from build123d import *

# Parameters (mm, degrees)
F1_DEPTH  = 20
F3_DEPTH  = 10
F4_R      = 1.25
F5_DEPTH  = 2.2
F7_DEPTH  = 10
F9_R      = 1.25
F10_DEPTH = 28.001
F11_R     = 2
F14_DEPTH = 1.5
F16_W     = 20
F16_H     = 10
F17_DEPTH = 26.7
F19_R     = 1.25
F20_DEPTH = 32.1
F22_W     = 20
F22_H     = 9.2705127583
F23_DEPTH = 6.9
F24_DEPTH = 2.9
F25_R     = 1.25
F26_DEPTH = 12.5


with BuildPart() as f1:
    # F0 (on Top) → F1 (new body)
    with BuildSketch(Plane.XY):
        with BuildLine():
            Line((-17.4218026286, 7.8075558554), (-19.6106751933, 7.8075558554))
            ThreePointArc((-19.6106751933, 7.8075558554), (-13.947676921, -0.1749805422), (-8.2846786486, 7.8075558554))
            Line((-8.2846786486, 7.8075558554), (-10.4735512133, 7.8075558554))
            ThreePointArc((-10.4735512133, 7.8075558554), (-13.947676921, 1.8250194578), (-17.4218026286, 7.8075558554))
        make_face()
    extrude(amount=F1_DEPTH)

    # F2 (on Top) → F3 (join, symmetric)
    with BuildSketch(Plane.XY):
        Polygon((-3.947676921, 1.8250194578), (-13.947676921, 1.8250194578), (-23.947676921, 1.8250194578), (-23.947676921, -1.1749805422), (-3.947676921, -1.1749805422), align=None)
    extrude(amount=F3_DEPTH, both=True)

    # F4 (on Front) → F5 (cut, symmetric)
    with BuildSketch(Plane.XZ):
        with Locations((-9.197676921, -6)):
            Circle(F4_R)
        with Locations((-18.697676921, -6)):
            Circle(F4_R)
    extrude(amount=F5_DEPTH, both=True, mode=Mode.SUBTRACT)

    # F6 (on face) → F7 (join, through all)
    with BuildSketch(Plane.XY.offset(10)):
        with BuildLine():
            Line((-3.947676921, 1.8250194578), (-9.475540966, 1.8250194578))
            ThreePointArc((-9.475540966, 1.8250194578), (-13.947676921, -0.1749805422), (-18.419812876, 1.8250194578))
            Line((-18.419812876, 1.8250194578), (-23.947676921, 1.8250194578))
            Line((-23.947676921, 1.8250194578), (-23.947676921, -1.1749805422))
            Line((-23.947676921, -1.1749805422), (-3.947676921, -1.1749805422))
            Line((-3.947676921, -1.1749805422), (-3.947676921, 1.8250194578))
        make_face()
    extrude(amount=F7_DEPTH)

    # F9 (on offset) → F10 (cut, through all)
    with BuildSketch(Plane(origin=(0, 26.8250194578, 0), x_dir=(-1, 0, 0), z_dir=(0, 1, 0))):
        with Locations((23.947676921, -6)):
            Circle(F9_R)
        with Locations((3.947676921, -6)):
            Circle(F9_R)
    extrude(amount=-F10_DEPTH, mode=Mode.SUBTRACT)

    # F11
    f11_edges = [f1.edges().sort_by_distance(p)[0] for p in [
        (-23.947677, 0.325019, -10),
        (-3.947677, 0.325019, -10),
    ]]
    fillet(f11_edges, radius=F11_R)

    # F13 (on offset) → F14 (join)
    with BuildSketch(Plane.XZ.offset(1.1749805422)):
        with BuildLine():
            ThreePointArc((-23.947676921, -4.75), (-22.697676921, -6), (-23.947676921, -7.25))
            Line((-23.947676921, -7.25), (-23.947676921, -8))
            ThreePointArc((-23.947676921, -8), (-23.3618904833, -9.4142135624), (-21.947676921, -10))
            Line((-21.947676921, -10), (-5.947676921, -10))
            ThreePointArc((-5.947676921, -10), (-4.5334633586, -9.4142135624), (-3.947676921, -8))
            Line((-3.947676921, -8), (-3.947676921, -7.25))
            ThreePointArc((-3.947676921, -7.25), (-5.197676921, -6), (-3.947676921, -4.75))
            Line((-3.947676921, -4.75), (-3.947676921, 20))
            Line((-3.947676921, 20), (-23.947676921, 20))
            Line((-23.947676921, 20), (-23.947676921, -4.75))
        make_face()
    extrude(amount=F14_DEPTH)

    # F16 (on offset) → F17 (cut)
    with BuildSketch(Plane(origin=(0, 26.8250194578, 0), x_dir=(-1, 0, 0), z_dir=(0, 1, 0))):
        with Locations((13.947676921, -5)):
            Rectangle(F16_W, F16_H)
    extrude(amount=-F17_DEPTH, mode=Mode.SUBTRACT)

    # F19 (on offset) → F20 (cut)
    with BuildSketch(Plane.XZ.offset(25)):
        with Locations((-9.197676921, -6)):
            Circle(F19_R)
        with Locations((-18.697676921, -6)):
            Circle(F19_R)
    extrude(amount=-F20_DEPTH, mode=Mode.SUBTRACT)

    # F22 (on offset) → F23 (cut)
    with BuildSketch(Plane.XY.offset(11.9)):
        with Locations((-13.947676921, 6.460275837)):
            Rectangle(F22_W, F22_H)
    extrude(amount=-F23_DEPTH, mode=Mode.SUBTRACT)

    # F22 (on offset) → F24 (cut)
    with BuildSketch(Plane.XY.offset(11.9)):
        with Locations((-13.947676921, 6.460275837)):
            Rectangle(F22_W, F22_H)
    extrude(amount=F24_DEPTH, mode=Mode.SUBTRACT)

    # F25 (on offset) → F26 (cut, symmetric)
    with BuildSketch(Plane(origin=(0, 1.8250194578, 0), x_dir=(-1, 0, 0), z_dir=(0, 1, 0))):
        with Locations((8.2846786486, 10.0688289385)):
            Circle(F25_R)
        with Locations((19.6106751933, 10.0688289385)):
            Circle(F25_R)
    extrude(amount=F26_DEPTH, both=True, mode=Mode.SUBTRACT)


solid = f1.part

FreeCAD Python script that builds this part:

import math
import FreeCAD as App
import Part
import Sketcher


def edges_at(feature, points):
    """Names of the edges that pass closest to the given points."""
    edges = feature.Shape.Edges
    near = lambda p: min(range(len(edges)), key=lambda i: edges[i].distToShape(Part.Vertex(*p))[0])
    return sorted({f"Edge{near(p) + 1}" for p in points})


def add_polygon(sketch, points):
    """Adds a closed chain of lines whose ends are joined by coincident constraints."""
    first, n = sketch.GeometryCount, len(points)
    for a, b in zip(points, points[1:] + points[:1]):
        sketch.addGeometry(Part.LineSegment(App.Vector(*a, 0), App.Vector(*b, 0)), False)
    for i in range(n):
        sketch.addConstraint(Sketcher.Constraint("Coincident", first + i, 2, first + (i + 1) % n, 1))

doc = App.newDocument("Part")
params = doc.addObject("Spreadsheet::Sheet", "Params")
for row, (alias, value) in enumerate([
    ("sketch1_radius", "6 mm"),
    ("sketch1_radius2", "4 mm"),
    ("pad1_length", "20 mm"),
    ("sketch2_width", "20 mm"),
    ("sketch2_height", "3 mm"),
    ("pad2_length", "20 mm"),
    ("sketch3_diameter", "2.5 mm"),
    ("pocket1_length", "4.4 mm"),
    ("sketch4_radius", "6 mm"),
    ("sketch4_width", "20 mm"),
    ("sketch4_height", "3 mm"),
    ("sketch5_diameter", "2.5 mm"),
    ("fillet_radius", "2 mm"),
    ("sketch6_radius", "2 mm"),
    ("sketch6_width", "16 mm"),
    ("sketch6_radius2", "1.25 mm"),
    ("pad4_length", "1.5 mm"),
    ("sketch7_width", "20 mm"),
    ("sketch7_height", "10 mm"),
    ("pocket3_length", "26.7 mm"),
    ("sketch8_diameter", "2.5 mm"),
    ("pocket4_length", "32.1 mm"),
    ("sketch9_width", "20 mm"),
    ("pocket5_length", "6.9 mm"),
    ("sketch10_width", "20 mm"),
    ("pocket6_length", "2.9 mm"),
    ("sketch11_diameter", "2.5 mm"),
    ("pocket7_length", "25 mm"),
], start=1):
    params.set(f"A{row}", alias)
    params.set(f"B{row}", "=" + value)
    params.setAlias(f"B{row}", alias)

body = doc.addObject("PartDesign::Body", "Body")

# Sketch on XY plane
sketch1 = doc.addObject("Sketcher::SketchObject", "Sketch")
body.addObject(sketch1)
sketch1.AttachmentSupport = (doc.XY_Plane, [""])
sketch1.MapMode = "FlatFace"
sketch1.addGeometry([
    Part.LineSegment(App.Vector(-17.421803, 7.807556, 0), App.Vector(-19.610675, 7.807556, 0)),
    Part.ArcOfCircle(Part.Circle(App.Vector(-13.947677, 5.825019, 0), App.Vector(0, 0, 1), 6), math.radians(160.705564), math.radians(379.294436)),
    Part.LineSegment(App.Vector(-8.284679, 7.807556, 0), App.Vector(-10.473551, 7.807556, 0)),
    Part.ArcOfCircle(Part.Circle(App.Vector(-13.947677, 5.825019, 0), App.Vector(0, 0, 1), 4), math.radians(150.288428), math.radians(389.711572)),
], False)
sketch1.addConstraint([
    Sketcher.Constraint("Coincident", 0, 2, 1, 1),
    Sketcher.Constraint("Coincident", 1, 2, 2, 1),
    Sketcher.Constraint("Coincident", 2, 2, 3, 2),
    Sketcher.Constraint("Coincident", 3, 1, 0, 1),
    Sketcher.Constraint("Horizontal", 0),
    Sketcher.Constraint("Horizontal", 2),
    Sketcher.Constraint("Coincident", 3, 3, 1, 3),
    Sketcher.Constraint("Horizontal", 0, 2, 1, 2),
    Sketcher.Constraint("Radius", 1, 6.0),
    Sketcher.Constraint("Radius", 3, 4.0),
    Sketcher.Constraint("DistanceX", 0, 2, 1, 3, 5.662998),
    Sketcher.Constraint("DistanceY", -1, 1, 1, 3, 5.825019),
    Sketcher.Constraint("DistanceX", 1, 2, -1, 1, 8.284679),
])
sketch1.setExpression("Constraints[8]", "Params.sketch1_radius")
sketch1.setExpression("Constraints[9]", "Params.sketch1_radius2")
pad1 = doc.addObject("PartDesign::Pad", "Pad")
body.addObject(pad1)
pad1.Profile = sketch1
pad1.setExpression("Length", "Params.pad1_length")

# Sketch on XY plane
sketch2 = doc.addObject("Sketcher::SketchObject", "Sketch001")
body.addObject(sketch2)
sketch2.AttachmentSupport = (doc.XY_Plane, [""])
sketch2.MapMode = "FlatFace"
add_polygon(sketch2, [(-3.947677, 1.825019), (-23.947677, 1.825019), (-23.947677, -1.174981), (-3.947677, -1.174981)])  # lines 0-3
sketch2.addConstraint([
    Sketcher.Constraint("Horizontal", 0),
    Sketcher.Constraint("Vertical", 1),
    Sketcher.Constraint("Horizontal", 2),
    Sketcher.Constraint("Vertical", 3),
    Sketcher.Constraint("DistanceX", 0, 2, 0, 1, 20.0),
    Sketcher.Constraint("DistanceY", 1, 2, 1, 1, 3.0),
    Sketcher.Constraint("DistanceY", -1, 1, 0, 2, 1.825019),
    Sketcher.Constraint("DistanceX", 0, 2, -1, 1, 23.947677),
])
sketch2.setExpression("Constraints[8]", "Params.sketch2_width")
sketch2.setExpression("Constraints[9]", "Params.sketch2_height")
pad2 = doc.addObject("PartDesign::Pad", "Pad001")
body.addObject(pad2)
pad2.Profile = sketch2
pad2.setExpression("Length", "Params.pad2_length")
pad2.Midplane = True

# Sketch on XZ plane
sketch3 = doc.addObject("Sketcher::SketchObject", "Sketch002")
body.addObject(sketch3)
sketch3.AttachmentSupport = (doc.XZ_Plane, [""])
sketch3.MapMode = "FlatFace"
sketch3.addGeometry([
    Part.Circle(App.Vector(-9.197677, -6, 0), App.Vector(0, 0, 1), 1.25),
    Part.Circle(App.Vector(-18.697677, -6, 0), App.Vector(0, 0, 1), 1.25),
], False)
sketch3.addConstraint([
    Sketcher.Constraint("Equal", 0, 1),
    Sketcher.Constraint("Horizontal", 0, 3, 1, 3),
    Sketcher.Constraint("Diameter", 0, 2.5),
    Sketcher.Constraint("DistanceY", 0, 3, -1, 1, 6.0),
    Sketcher.Constraint("DistanceX", 1, 3, 0, 3, 9.5),
    Sketcher.Constraint("DistanceX", 0, 3, -1, 1, 9.197677),
])
sketch3.setExpression("Constraints[2]", "Params.sketch3_diameter")
pocket1 = doc.addObject("PartDesign::Pocket", "Pocket")
body.addObject(pocket1)
pocket1.Profile = sketch3
pocket1.setExpression("Length", "Params.pocket1_length")
pocket1.Midplane = True

# Sketch on XY plane
sketch4 = doc.addObject("Sketcher::SketchObject", "Sketch003")
body.addObject(sketch4)
sketch4.AttachmentSupport = (doc.XY_Plane, [""])
sketch4.MapMode = "FlatFace"
sketch4.AttachmentOffset = App.Placement(App.Vector(0, 0, 10), App.Rotation())
sketch4.addGeometry([
    Part.LineSegment(App.Vector(-3.947677, 1.825019, 0), App.Vector(-9.475541, 1.825019, 0)),  # 0
    Part.ArcOfCircle(Part.Circle(App.Vector(-13.947677, 5.825019, 0), App.Vector(0, 0, 1), 6), math.radians(-138.189685), math.radians(-41.810315)),  # 1
    Part.LineSegment(App.Vector(-18.419813, 1.825019, 0), App.Vector(-23.947677, 1.825019, 0)),  # 2
    Part.LineSegment(App.Vector(-23.947677, 1.825019, 0), App.Vector(-23.947677, -1.174981, 0)),  # 3
    Part.LineSegment(App.Vector(-23.947677, -1.174981, 0), App.Vector(-3.947677, -1.174981, 0)),  # 4
    Part.LineSegment(App.Vector(-3.947677, -1.174981, 0), App.Vector(-3.947677, 1.825019, 0)),  # 5
], False)
sketch4.addConstraint([
    Sketcher.Constraint("Coincident", 0, 2, 1, 2),
    Sketcher.Constraint("Coincident", 1, 1, 2, 1),
    Sketcher.Constraint("Coincident", 2, 2, 3, 1),
    Sketcher.Constraint("Coincident", 3, 2, 4, 1),
    Sketcher.Constraint("Coincident", 4, 2, 5, 1),
    Sketcher.Constraint("Coincident", 5, 2, 0, 1),
    Sketcher.Constraint("Horizontal", 0),
    Sketcher.Constraint("Horizontal", 2),
    Sketcher.Constraint("Vertical", 3),
    Sketcher.Constraint("Horizontal", 4),
    Sketcher.Constraint("Vertical", 5),
    Sketcher.Constraint("Horizontal", 0, 2, 1, 1),
    Sketcher.Constraint("Equal", 0, 2),
    Sketcher.Constraint("Radius", 1, 6.0),
    Sketcher.Constraint("DistanceX", 4, 1, 4, 2, 20.0),
    Sketcher.Constraint("DistanceY", 3, 2, 3, 1, 3.0),
    Sketcher.Constraint("DistanceY", 0, 2, 1, 3, 4.0),
    Sketcher.Constraint("DistanceY", -1, 1, 1, 3, 5.825019),
    Sketcher.Constraint("DistanceX", 0, 2, -1, 1, 9.475541),
])
sketch4.setExpression("Constraints[13]", "Params.sketch4_radius")
sketch4.setExpression("Constraints[14]", "Params.sketch4_width")
sketch4.setExpression("Constraints[15]", "Params.sketch4_height")
pad3 = doc.addObject("PartDesign::Pad", "Pad002")
body.addObject(pad3)
pad3.Profile = sketch4
pad3.Type = "UpToLast"

# Sketch on XZ plane
sketch5 = doc.addObject("Sketcher::SketchObject", "Sketch004")
body.addObject(sketch5)
sketch5.AttachmentSupport = (doc.XZ_Plane, [""])
sketch5.MapMode = "FlatFace"
sketch5.AttachmentOffset = App.Placement(App.Vector(0, 0, -26.825019), App.Rotation())
sketch5.addGeometry([
    Part.Circle(App.Vector(-23.947677, -6, 0), App.Vector(0, 0, 1), 1.25),
    Part.Circle(App.Vector(-3.947677, -6, 0), App.Vector(0, 0, 1), 1.25),
], False)
sketch5.addConstraint([
    Sketcher.Constraint("Equal", 0, 1),
    Sketcher.Constraint("Horizontal", 0, 3, 1, 3),
    Sketcher.Constraint("Diameter", 0, 2.5),
    Sketcher.Constraint("DistanceY", 0, 3, -1, 1, 6.0),
    Sketcher.Constraint("DistanceX", 0, 3, 1, 3, 20.0),
    Sketcher.Constraint("DistanceX", 0, 3, -1, 1, 23.947677),
])
sketch5.setExpression("Constraints[2]", "Params.sketch5_diameter")
pocket2 = doc.addObject("PartDesign::Pocket", "Pocket001")
body.addObject(pocket2)
pocket2.Profile = sketch5
pocket2.Type = "ThroughAll"
pocket2.Reversed = True
doc.recompute()

fillet = doc.addObject("PartDesign::Fillet", "Fillet")
body.addObject(fillet)
fillet.Base = (pocket2, edges_at(pocket2, [(-23.948, 0.325, -10), (-3.948, 0.325, -10)]))
fillet.setExpression("Radius", "Params.fillet_radius")

# Sketch on XZ plane
sketch6 = doc.addObject("Sketcher::SketchObject", "Sketch005")
body.addObject(sketch6)
sketch6.AttachmentSupport = (doc.XZ_Plane, [""])
sketch6.MapMode = "FlatFace"
sketch6.AttachmentOffset = App.Placement(App.Vector(0, 0, 1.174981), App.Rotation())
sketch6.addGeometry([
    Part.ArcOfCircle(Part.Circle(App.Vector(-23.947677, -6, 0), App.Vector(0, 0, 1), 1.25), math.radians(-90), math.radians(90)),  # 0
    Part.LineSegment(App.Vector(-23.947677, -7.25, 0), App.Vector(-23.947677, -8, 0)),  # 1
    Part.ArcOfCircle(Part.Circle(App.Vector(-21.947677, -8, 0), App.Vector(0, 0, 1), 2), math.radians(180), math.radians(270)),  # 2
    Part.LineSegment(App.Vector(-21.947677, -10, 0), App.Vector(-5.947677, -10, 0)),  # 3
    Part.ArcOfCircle(Part.Circle(App.Vector(-5.947677, -8, 0), App.Vector(0, 0, 1), 2), math.radians(-90), math.radians(0)),  # 4
    Part.LineSegment(App.Vector(-3.947677, -8, 0), App.Vector(-3.947677, -7.25, 0)),  # 5
    Part.ArcOfCircle(Part.Circle(App.Vector(-3.947677, -6, 0), App.Vector(0, 0, 1), 1.25), math.radians(90), math.radians(270)),  # 6
    Part.LineSegment(App.Vector(-3.947677, -4.75, 0), App.Vector(-3.947677, 20, 0)),  # 7
    Part.LineSegment(App.Vector(-3.947677, 20, 0), App.Vector(-23.947677, 20, 0)),  # 8
    Part.LineSegment(App.Vector(-23.947677, 20, 0), App.Vector(-23.947677, -4.75, 0)),  # 9
], False)
sketch6.addConstraint([
    Sketcher.Constraint("Coincident", 0, 1, 1, 1),
    Sketcher.Constraint("Tangent", 1, 2, 2, 1),
    Sketcher.Constraint("Tangent", 2, 2, 3, 1),
    Sketcher.Constraint("Tangent", 3, 2, 4, 1),
    Sketcher.Constraint("Tangent", 4, 2, 5, 1),
    Sketcher.Constraint("Coincident", 5, 2, 6, 2),
    Sketcher.Constraint("Coincident", 6, 1, 7, 1),
    Sketcher.Constraint("Coincident", 7, 2, 8, 1),
    Sketcher.Constraint("Coincident", 8, 2, 9, 1),
    Sketcher.Constraint("Coincident", 9, 2, 0, 2),
    Sketcher.Constraint("Vertical", 1),
    Sketcher.Constraint("Horizontal", 3),
    Sketcher.Constraint("Vertical", 5),
    Sketcher.Constraint("Vertical", 7),
    Sketcher.Constraint("Horizontal", 8),
    Sketcher.Constraint("Vertical", 9),
    Sketcher.Constraint("Equal", 2, 4),
    Sketcher.Constraint("Equal", 0, 6),
    Sketcher.Constraint("Horizontal", 0, 3, 6, 3),
    Sketcher.Constraint("Vertical", 6, 3, 4, 2),
    Sketcher.Constraint("Vertical", 5, 2, 6, 1),
    Sketcher.Constraint("Vertical", 1, 2, 8, 2),
    Sketcher.Constraint("Radius", 2, 2.0),
    Sketcher.Constraint("DistanceX", 3, 1, 3, 2, 16.0),
    Sketcher.Constraint("Radius", 0, 1.25),
    Sketcher.Constraint("DistanceY", 0, 3, -1, 1, 6.0),
    Sketcher.Constraint("DistanceY", 2, 3, -1, 1, 8.0),
    Sketcher.Constraint("DistanceY", -1, 1, 7, 2, 20.0),
    Sketcher.Constraint("DistanceX", 0, 3, 2, 3, 2.0),
    Sketcher.Constraint("DistanceX", 0, 3, -1, 1, 23.947677),
])
sketch6.setExpression("Constraints[22]", "Params.sketch6_radius")
sketch6.setExpression("Constraints[23]", "Params.sketch6_width")
sketch6.setExpression("Constraints[24]", "Params.sketch6_radius2")
pad4 = doc.addObject("PartDesign::Pad", "Pad003")
body.addObject(pad4)
pad4.Profile = sketch6
pad4.setExpression("Length", "Params.pad4_length")

# Sketch on XZ plane
sketch7 = doc.addObject("Sketcher::SketchObject", "Sketch006")
body.addObject(sketch7)
sketch7.AttachmentSupport = (doc.XZ_Plane, [""])
sketch7.MapMode = "FlatFace"
sketch7.AttachmentOffset = App.Placement(App.Vector(0, 0, -26.825019), App.Rotation())
add_polygon(sketch7, [(-3.947677, 0), (-3.947677, -10), (-23.947677, -10), (-23.947677, 0)])  # lines 0-3
sketch7.addConstraint([
    Sketcher.Constraint("Vertical", 0),
    Sketcher.Constraint("Horizontal", 1),
    Sketcher.Constraint("Vertical", 2),
    Sketcher.Constraint("Horizontal", 3),
    Sketcher.Constraint("PointOnObject", 2, 2, -1),
    Sketcher.Constraint("DistanceX", 1, 2, 1, 1, 20.0),
    Sketcher.Constraint("DistanceY", 0, 2, 0, 1, 10.0),
    Sketcher.Constraint("DistanceX", 0, 2, -1, 1, 3.947677),
])
sketch7.setExpression("Constraints[9]", "Params.sketch7_width")
sketch7.setExpression("Constraints[10]", "Params.sketch7_height")
pocket3 = doc.addObject("PartDesign::Pocket", "Pocket002")
body.addObject(pocket3)
pocket3.Profile = sketch7
pocket3.setExpression("Length", "Params.pocket3_length")
pocket3.Reversed = True

# Sketch on XZ plane
sketch8 = doc.addObject("Sketcher::SketchObject", "Sketch007")
body.addObject(sketch8)
sketch8.AttachmentSupport = (doc.XZ_Plane, [""])
sketch8.MapMode = "FlatFace"
sketch8.AttachmentOffset = App.Placement(App.Vector(0, 0, 25), App.Rotation())
sketch8.addGeometry([
    Part.Circle(App.Vector(-9.197677, -6, 0), App.Vector(0, 0, 1), 1.25),
    Part.Circle(App.Vector(-18.697677, -6, 0), App.Vector(0, 0, 1), 1.25),
], False)
sketch8.addConstraint([
    Sketcher.Constraint("Equal", 0, 1),
    Sketcher.Constraint("Horizontal", 0, 3, 1, 3),
    Sketcher.Constraint("Diameter", 0, 2.5),
    Sketcher.Constraint("DistanceY", 0, 3, -1, 1, 6.0),
    Sketcher.Constraint("DistanceX", 1, 3, 0, 3, 9.5),
    Sketcher.Constraint("DistanceX", 0, 3, -1, 1, 9.197677),
])
sketch8.setExpression("Constraints[2]", "Params.sketch8_diameter")
pocket4 = doc.addObject("PartDesign::Pocket", "Pocket003")
body.addObject(pocket4)
pocket4.Profile = sketch8
pocket4.setExpression("Length", "Params.pocket4_length")

# Sketch on XY plane
sketch9 = doc.addObject("Sketcher::SketchObject", "Sketch008")
body.addObject(sketch9)
sketch9.AttachmentSupport = (doc.XY_Plane, [""])
sketch9.MapMode = "FlatFace"
sketch9.AttachmentOffset = App.Placement(App.Vector(0, 0, 11.9), App.Rotation())
add_polygon(sketch9, [(-23.947677, 11.095532), (-23.947677, 1.825019), (-3.947677, 1.825019), (-3.947677, 11.095532)])  # lines 0-3
sketch9.addConstraint([
    Sketcher.Constraint("Vertical", 0),
    Sketcher.Constraint("Horizontal", 1),
    Sketcher.Constraint("Vertical", 2),
    Sketcher.Constraint("Horizontal", 3),
    Sketcher.Constraint("DistanceX", 1, 1, 1, 2, 20.0),
    Sketcher.Constraint("DistanceY", 0, 2, 0, 1, 9.270513),
    Sketcher.Constraint("DistanceY", -1, 1, 0, 2, 1.825019),
    Sketcher.Constraint("DistanceX", 0, 2, -1, 1, 23.947677),
])
sketch9.setExpression("Constraints[8]", "Params.sketch9_width")
pocket5 = doc.addObject("PartDesign::Pocket", "Pocket004")
body.addObject(pocket5)
pocket5.Profile = sketch9
pocket5.setExpression("Length", "Params.pocket5_length")

# Sketch on XY plane
sketch10 = doc.addObject("Sketcher::SketchObject", "Sketch009")
body.addObject(sketch10)
sketch10.AttachmentSupport = (doc.XY_Plane, [""])
sketch10.MapMode = "FlatFace"
sketch10.AttachmentOffset = App.Placement(App.Vector(0, 0, 11.9), App.Rotation())
add_polygon(sketch10, [(-23.947677, 11.095532), (-23.947677, 1.825019), (-3.947677, 1.825019), (-3.947677, 11.095532)])  # lines 0-3
sketch10.addConstraint([
    Sketcher.Constraint("Vertical", 0),
    Sketcher.Constraint("Horizontal", 1),
    Sketcher.Constraint("Vertical", 2),
    Sketcher.Constraint("Horizontal", 3),
    Sketcher.Constraint("DistanceX", 1, 1, 1, 2, 20.0),
    Sketcher.Constraint("DistanceY", 0, 2, 0, 1, 9.270513),
    Sketcher.Constraint("DistanceY", -1, 1, 0, 2, 1.825019),
    Sketcher.Constraint("DistanceX", 0, 2, -1, 1, 23.947677),
])
sketch10.setExpression("Constraints[8]", "Params.sketch10_width")
pocket6 = doc.addObject("PartDesign::Pocket", "Pocket005")
body.addObject(pocket6)
pocket6.Profile = sketch10
pocket6.setExpression("Length", "Params.pocket6_length")
pocket6.Reversed = True

# Sketch on XZ plane
sketch11 = doc.addObject("Sketcher::SketchObject", "Sketch010")
body.addObject(sketch11)
sketch11.AttachmentSupport = (doc.XZ_Plane, [""])
sketch11.MapMode = "FlatFace"
sketch11.AttachmentOffset = App.Placement(App.Vector(0, 0, -1.825019), App.Rotation())
sketch11.addGeometry([
    Part.Circle(App.Vector(-8.284679, 10.068829, 0), App.Vector(0, 0, 1), 1.25),
    Part.Circle(App.Vector(-19.610675, 10.068829, 0), App.Vector(0, 0, 1), 1.25),
], False)
sketch11.addConstraint([
    Sketcher.Constraint("Equal", 0, 1),
    Sketcher.Constraint("Horizontal", 0, 3, 1, 3),
    Sketcher.Constraint("Diameter", 0, 2.5),
    Sketcher.Constraint("DistanceX", 0, 3, -1, 1, 8.284679),
    Sketcher.Constraint("DistanceY", -1, 1, 0, 3, 10.068829),
    Sketcher.Constraint("DistanceX", 1, 3, -1, 1, 19.610675),
])
sketch11.setExpression("Constraints[2]", "Params.sketch11_diameter")
pocket7 = doc.addObject("PartDesign::Pocket", "Pocket006")
body.addObject(pocket7)
pocket7.Profile = sketch11
pocket7.setExpression("Length", "Params.pocket7_length")
pocket7.Midplane = True

doc.recompute()
